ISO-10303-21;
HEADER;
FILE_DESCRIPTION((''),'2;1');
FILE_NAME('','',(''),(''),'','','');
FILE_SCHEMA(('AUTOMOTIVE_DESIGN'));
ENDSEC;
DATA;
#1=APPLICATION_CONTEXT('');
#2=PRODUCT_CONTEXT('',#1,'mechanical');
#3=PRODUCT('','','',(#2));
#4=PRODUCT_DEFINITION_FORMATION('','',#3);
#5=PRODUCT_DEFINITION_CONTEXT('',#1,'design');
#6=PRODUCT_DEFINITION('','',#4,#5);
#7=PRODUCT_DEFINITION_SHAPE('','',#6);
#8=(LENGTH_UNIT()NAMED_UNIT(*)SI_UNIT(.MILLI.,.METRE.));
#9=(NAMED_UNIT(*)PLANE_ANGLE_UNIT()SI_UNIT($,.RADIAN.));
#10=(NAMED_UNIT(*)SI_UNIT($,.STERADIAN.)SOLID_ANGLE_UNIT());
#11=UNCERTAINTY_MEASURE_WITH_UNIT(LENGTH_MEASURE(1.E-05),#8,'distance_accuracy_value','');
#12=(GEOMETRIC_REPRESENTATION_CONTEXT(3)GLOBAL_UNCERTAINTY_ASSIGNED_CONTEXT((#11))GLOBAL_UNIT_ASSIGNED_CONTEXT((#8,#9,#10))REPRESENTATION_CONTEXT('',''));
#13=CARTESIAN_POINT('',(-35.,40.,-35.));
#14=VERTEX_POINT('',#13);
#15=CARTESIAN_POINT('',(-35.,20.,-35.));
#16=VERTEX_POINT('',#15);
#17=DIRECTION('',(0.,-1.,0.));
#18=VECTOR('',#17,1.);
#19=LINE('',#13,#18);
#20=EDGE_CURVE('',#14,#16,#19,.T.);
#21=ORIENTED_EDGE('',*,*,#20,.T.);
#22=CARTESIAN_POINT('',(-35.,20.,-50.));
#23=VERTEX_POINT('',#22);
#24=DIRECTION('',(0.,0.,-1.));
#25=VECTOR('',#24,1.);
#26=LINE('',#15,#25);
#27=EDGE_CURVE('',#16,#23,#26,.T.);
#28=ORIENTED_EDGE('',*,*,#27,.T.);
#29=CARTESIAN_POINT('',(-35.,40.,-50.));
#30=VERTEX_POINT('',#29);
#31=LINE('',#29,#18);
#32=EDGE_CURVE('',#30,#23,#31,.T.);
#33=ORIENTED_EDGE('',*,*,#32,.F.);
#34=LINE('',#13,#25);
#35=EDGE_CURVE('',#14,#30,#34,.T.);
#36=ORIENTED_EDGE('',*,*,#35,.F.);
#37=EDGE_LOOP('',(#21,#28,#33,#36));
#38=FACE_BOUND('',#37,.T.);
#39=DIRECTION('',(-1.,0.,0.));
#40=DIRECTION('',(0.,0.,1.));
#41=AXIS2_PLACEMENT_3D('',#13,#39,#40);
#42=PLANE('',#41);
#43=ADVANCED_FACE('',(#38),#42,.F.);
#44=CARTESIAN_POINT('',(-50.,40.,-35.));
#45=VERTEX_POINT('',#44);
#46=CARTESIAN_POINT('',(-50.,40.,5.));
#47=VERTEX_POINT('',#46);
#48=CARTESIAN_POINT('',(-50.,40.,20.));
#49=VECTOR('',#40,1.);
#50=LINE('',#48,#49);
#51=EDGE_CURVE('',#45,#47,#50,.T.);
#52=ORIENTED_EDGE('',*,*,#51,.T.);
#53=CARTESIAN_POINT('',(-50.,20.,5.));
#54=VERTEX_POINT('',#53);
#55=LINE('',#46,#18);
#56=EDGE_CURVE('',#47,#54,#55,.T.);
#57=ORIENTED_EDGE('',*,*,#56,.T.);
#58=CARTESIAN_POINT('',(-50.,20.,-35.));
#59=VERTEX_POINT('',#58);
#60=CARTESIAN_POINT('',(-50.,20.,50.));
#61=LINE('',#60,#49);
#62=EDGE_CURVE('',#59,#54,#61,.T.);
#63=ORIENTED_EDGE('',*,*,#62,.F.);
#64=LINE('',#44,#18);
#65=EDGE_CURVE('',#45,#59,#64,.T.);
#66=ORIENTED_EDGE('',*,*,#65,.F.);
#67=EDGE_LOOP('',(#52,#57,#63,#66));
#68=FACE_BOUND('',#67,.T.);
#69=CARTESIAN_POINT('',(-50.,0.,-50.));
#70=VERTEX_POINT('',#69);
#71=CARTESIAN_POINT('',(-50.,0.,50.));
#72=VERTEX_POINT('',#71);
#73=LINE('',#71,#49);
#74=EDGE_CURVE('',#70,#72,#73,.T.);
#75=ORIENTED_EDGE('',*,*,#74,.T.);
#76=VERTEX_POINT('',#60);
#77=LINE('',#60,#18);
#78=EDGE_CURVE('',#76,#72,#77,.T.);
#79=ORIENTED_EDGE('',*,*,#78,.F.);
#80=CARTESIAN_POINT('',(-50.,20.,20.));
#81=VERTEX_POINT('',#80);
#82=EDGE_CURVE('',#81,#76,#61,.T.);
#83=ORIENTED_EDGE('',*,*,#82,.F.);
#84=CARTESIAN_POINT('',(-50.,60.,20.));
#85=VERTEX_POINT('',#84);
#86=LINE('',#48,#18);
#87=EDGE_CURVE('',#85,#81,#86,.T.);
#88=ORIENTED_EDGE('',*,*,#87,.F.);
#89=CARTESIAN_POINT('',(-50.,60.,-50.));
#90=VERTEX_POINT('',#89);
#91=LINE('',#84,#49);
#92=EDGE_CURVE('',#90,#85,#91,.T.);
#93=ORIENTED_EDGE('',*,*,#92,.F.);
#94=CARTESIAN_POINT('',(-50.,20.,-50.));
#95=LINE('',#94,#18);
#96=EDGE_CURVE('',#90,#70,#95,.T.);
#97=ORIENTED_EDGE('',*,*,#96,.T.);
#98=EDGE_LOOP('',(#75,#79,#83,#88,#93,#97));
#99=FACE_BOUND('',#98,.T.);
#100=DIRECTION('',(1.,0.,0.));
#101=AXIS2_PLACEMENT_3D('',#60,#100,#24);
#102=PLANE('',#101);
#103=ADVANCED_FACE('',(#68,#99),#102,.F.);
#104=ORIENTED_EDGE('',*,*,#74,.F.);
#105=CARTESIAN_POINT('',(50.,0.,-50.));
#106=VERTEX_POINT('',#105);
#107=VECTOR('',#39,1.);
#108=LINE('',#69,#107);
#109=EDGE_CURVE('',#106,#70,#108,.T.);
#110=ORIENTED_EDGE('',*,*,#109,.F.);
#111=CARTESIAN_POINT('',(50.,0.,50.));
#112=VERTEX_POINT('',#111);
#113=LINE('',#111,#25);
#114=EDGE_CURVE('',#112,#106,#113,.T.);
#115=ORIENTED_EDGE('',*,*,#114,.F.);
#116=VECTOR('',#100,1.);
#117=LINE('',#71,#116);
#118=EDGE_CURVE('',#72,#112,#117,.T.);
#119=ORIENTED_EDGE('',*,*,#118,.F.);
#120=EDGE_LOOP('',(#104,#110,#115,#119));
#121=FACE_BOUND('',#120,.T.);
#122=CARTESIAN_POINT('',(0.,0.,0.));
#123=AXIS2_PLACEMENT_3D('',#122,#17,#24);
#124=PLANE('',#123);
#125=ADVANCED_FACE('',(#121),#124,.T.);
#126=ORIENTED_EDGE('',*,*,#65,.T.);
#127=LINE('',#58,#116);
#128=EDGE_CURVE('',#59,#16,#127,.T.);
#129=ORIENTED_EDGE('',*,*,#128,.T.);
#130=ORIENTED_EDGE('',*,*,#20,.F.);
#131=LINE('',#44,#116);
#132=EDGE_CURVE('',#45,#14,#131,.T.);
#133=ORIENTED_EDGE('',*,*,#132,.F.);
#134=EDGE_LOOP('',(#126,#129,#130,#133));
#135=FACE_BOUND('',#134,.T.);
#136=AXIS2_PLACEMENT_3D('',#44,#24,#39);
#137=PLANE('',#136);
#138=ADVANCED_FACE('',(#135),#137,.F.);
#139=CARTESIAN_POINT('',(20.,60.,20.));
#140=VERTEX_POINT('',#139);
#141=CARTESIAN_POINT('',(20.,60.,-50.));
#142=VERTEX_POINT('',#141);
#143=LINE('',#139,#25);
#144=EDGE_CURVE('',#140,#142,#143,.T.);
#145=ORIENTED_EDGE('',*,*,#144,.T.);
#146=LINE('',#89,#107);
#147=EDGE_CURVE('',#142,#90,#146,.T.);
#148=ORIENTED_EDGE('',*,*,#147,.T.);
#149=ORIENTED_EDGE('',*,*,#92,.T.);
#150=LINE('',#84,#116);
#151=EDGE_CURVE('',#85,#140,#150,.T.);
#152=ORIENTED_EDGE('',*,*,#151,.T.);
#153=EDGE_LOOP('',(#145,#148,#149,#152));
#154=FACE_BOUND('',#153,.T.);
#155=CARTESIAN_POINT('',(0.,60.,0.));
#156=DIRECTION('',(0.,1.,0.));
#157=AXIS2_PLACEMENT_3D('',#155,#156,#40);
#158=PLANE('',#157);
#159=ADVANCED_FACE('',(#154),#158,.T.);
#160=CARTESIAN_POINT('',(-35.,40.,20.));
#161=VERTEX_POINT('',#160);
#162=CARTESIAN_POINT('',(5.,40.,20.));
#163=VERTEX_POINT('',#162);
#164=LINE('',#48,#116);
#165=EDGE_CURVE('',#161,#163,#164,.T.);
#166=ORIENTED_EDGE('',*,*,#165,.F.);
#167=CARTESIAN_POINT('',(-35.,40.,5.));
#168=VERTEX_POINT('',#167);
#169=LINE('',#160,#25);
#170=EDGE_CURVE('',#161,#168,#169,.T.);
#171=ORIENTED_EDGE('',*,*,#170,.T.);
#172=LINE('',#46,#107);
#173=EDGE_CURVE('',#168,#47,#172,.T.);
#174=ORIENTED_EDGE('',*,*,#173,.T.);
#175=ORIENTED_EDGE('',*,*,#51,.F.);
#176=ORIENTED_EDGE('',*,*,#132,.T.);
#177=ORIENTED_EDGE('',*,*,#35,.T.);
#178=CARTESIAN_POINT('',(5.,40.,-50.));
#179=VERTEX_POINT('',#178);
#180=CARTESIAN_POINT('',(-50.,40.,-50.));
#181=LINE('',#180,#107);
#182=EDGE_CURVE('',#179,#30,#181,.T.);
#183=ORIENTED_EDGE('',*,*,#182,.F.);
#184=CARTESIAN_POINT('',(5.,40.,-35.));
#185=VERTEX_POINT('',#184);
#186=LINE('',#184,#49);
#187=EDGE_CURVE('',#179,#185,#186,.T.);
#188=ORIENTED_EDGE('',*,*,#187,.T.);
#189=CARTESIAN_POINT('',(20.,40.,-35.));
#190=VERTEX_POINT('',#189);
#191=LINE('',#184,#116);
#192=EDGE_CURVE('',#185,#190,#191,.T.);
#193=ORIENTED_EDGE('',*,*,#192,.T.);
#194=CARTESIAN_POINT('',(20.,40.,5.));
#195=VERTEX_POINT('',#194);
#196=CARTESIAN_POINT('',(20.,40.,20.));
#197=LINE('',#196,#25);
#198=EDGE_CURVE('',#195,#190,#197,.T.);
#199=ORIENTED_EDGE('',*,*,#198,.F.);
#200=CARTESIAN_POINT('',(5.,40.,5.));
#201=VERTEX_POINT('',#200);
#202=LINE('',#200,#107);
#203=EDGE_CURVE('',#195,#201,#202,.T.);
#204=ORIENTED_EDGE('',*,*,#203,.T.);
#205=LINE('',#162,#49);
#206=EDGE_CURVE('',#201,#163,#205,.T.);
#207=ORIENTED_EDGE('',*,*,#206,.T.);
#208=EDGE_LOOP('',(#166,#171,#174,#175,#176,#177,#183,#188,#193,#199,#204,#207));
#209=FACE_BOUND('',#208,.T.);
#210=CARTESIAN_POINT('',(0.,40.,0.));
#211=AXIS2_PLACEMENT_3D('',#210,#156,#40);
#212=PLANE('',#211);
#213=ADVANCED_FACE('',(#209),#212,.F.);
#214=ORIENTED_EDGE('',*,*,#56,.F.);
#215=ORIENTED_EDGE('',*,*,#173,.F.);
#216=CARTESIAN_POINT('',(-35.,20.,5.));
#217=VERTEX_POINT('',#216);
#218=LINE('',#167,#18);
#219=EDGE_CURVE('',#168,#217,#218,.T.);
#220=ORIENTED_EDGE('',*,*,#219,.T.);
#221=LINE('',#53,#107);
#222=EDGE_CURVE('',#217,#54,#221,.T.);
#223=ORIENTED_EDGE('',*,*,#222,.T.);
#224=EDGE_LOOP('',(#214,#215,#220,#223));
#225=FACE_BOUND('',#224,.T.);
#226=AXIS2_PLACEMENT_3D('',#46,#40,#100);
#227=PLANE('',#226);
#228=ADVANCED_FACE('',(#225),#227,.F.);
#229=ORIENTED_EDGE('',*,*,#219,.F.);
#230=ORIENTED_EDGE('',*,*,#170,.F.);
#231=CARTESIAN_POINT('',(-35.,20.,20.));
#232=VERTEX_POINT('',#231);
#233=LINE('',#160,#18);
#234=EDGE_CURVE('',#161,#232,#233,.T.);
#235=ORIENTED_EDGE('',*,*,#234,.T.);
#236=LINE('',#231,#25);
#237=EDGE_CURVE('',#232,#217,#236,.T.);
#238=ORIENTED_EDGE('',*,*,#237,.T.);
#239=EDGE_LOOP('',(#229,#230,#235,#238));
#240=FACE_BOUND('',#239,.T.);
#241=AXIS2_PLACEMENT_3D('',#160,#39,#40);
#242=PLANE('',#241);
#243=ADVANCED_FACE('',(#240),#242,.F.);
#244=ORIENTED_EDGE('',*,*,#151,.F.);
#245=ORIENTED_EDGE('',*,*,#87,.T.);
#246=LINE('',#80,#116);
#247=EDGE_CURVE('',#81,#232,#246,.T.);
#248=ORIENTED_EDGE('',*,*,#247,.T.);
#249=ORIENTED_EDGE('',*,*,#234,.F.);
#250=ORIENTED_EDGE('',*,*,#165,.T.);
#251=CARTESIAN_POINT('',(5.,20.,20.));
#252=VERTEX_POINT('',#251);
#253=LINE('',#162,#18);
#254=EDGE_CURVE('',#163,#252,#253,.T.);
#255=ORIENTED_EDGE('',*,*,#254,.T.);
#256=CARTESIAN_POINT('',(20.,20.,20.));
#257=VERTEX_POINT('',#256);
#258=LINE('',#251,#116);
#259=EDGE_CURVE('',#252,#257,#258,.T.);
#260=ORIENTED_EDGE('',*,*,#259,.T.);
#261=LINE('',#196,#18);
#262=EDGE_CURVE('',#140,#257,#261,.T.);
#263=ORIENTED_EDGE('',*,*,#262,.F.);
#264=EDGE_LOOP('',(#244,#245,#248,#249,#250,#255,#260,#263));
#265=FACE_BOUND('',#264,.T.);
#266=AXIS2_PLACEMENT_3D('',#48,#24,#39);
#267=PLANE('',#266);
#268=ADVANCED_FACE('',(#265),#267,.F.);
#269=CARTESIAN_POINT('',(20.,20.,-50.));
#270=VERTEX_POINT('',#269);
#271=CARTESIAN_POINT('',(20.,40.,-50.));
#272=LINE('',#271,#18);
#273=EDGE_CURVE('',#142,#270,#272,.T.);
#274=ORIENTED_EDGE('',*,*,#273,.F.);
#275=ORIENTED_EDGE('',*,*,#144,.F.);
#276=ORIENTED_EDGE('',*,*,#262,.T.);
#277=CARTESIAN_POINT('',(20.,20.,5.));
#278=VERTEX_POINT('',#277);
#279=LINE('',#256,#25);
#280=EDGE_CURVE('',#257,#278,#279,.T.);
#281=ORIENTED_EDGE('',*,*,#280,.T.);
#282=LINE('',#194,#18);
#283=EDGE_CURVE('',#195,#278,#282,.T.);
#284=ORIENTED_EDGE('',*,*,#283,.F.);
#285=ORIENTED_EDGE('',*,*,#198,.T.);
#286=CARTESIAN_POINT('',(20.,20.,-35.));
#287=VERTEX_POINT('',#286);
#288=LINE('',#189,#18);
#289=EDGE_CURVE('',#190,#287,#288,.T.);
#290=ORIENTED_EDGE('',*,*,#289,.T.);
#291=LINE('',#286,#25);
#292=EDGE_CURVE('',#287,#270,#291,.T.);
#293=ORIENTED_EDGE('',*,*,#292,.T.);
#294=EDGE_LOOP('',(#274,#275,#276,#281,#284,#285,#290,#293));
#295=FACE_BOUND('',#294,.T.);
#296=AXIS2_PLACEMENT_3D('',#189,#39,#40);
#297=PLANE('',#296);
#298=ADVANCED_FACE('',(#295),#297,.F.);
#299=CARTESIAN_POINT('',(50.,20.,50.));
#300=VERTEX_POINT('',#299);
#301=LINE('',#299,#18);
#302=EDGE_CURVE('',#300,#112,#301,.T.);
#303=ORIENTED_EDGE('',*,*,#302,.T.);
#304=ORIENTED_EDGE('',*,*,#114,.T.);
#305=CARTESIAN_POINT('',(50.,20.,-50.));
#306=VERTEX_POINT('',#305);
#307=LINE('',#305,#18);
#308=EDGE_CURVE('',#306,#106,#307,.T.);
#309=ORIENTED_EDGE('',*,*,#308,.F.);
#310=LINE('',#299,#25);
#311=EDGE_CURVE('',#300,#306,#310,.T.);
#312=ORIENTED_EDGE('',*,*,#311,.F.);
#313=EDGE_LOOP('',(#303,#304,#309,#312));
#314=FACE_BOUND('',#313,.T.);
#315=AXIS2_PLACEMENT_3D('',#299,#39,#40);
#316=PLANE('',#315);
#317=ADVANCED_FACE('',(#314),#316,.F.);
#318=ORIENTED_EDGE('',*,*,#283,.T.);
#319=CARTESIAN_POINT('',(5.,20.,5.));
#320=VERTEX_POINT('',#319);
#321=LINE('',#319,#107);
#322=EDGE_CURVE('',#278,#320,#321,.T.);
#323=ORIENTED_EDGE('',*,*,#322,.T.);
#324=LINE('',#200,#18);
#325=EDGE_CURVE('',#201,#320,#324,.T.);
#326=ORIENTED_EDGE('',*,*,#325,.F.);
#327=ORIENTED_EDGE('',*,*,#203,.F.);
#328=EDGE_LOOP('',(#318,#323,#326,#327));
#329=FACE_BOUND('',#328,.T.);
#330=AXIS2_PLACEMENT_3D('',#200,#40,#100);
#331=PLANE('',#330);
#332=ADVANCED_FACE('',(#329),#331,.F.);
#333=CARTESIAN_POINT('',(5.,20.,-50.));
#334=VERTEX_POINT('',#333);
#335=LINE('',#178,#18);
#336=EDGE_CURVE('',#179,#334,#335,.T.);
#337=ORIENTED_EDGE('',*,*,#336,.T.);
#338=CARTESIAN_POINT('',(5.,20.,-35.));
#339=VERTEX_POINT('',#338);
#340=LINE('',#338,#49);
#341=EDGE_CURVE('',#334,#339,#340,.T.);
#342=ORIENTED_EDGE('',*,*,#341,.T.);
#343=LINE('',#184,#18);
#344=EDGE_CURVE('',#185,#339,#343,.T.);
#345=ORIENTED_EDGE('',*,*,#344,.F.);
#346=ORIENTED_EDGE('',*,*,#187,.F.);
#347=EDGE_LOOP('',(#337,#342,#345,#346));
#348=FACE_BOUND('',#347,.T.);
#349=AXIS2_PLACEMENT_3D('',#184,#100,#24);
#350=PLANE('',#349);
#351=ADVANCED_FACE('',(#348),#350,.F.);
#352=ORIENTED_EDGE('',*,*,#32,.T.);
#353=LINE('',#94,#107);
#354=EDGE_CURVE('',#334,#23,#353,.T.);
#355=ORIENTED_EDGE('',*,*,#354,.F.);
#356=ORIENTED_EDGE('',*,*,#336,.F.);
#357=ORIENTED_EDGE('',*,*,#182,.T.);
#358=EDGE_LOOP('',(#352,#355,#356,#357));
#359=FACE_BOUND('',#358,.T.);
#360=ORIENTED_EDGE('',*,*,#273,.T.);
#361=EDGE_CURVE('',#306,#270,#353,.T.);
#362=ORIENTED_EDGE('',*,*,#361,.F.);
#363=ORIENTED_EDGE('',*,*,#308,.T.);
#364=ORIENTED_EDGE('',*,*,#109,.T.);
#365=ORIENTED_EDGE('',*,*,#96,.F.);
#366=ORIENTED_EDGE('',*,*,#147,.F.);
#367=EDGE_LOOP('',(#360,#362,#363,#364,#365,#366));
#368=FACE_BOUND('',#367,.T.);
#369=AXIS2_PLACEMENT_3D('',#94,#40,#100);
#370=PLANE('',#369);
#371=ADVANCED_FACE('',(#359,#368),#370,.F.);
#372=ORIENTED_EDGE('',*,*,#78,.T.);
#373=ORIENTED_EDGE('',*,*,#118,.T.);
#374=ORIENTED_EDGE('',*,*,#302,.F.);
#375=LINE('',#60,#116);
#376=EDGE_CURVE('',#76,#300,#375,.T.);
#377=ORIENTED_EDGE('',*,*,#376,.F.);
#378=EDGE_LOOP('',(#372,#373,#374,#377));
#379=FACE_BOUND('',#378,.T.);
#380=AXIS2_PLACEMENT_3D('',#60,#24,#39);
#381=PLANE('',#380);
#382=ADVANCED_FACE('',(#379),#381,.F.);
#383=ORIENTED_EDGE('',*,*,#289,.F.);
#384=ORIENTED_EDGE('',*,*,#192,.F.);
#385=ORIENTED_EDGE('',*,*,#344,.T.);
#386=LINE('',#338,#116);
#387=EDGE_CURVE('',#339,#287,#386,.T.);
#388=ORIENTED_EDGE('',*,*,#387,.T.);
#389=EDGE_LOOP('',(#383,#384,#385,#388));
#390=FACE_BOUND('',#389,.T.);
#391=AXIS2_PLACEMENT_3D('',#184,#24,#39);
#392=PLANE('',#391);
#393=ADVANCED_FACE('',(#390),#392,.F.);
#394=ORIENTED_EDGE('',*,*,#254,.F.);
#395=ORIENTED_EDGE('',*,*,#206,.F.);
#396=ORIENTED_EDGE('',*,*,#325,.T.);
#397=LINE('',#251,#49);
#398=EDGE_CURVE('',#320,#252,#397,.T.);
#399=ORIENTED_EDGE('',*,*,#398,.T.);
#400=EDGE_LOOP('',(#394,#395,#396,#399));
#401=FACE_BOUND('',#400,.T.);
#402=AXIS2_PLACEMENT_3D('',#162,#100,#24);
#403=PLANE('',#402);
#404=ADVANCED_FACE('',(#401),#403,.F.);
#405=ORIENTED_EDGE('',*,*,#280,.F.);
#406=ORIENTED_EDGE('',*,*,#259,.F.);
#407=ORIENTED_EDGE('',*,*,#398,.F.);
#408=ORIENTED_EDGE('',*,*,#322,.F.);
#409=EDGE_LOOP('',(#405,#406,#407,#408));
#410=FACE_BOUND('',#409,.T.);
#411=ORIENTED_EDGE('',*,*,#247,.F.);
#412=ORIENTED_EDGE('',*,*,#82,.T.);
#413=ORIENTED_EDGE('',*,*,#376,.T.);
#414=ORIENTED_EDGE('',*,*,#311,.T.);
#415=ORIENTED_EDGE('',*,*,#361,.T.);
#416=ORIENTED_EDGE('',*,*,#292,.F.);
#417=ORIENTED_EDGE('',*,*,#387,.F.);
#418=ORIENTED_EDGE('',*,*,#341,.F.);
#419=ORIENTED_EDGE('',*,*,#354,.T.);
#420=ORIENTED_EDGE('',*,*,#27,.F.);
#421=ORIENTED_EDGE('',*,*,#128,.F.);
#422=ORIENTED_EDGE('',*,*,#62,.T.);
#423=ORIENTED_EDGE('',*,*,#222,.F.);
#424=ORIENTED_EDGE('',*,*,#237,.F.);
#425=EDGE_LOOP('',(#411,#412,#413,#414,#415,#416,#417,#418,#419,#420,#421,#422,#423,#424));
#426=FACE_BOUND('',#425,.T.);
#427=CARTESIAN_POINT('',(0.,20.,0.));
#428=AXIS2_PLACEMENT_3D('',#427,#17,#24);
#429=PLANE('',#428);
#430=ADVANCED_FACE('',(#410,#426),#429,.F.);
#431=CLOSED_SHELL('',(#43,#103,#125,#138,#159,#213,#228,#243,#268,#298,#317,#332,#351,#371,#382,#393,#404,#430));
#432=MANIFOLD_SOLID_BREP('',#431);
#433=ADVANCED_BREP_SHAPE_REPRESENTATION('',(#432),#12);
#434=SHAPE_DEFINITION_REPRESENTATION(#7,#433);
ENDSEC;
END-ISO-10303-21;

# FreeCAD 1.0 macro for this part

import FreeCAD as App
import Part
import Sketcher

V = App.Vector


def add_polygon(sketch, points):
    """Adds a closed chain of lines whose ends are joined by coincident constraints."""
    first, n = sketch.GeometryCount, len(points)
    for a, b in zip(points, points[1:] + points[:1]):
        sketch.addGeometry(Part.LineSegment(App.Vector(*a, 0), App.Vector(*b, 0)), False)
    for i in range(n):
        sketch.addConstraint(Sketcher.Constraint("Coincident", first + i, 2, first + (i + 1) % n, 1))

doc = App.newDocument("Part")
body = doc.addObject("PartDesign::Body", "Body")

sketch1 = body.newObject("Sketcher::SketchObject", "Sketch")
sketch1.AttachmentSupport = (doc.getObject("XZ_Plane"), [""])
sketch1.MapMode = "FlatFace"
add_polygon(sketch1, [(-50, -50), (-50, 50), (50, 50), (50, -50)])
sketch1.addConstraint(Sketcher.Constraint("Vertical", 0))
sketch1.addConstraint(Sketcher.Constraint("Horizontal", 1))
sketch1.addConstraint(Sketcher.Constraint("Vertical", 2))
sketch1.addConstraint(Sketcher.Constraint("Horizontal", 3))
sketch1.addConstraint(Sketcher.Constraint("Symmetric", 0, 2, 2, 2, -1, 1))
sketch1.addConstraint(Sketcher.Constraint("Equal", 3, 0))
sketch1.addConstraint(Sketcher.Constraint("DistanceX", 1, 1, 1, 2, 100.0))
pad1 = body.newObject("PartDesign::Pad", "Pad")
pad1.Profile = sketch1
pad1.Length = 20
pad1.Reversed = True

sketch2 = body.newObject("Sketcher::SketchObject", "Sketch001")
sketch2.AttachmentSupport = (doc.getObject("XZ_Plane"), [""])
sketch2.MapMode = "FlatFace"
sketch2.AttachmentOffset = App.Placement(V(0, 0, -20), App.Rotation())
add_polygon(sketch2, [(-50, 5), (-50, 20), (-35, 20), (-35, 5)])
add_polygon(sketch2, [(-50, -50), (-50, -35), (-35, -35), (-35, -50)])
add_polygon(sketch2, [(5, -50), (5, -35), (20, -35), (20, -50)])
add_polygon(sketch2, [(5, 5), (5, 20), (20, 20), (20, 5)])
sketch2.addConstraint(Sketcher.Constraint("Vertical", 0))
sketch2.addConstraint(Sketcher.Constraint("Horizontal", 1))
sketch2.addConstraint(Sketcher.Constraint("Vertical", 2))
sketch2.addConstraint(Sketcher.Constraint("Horizontal", 3))
sketch2.addConstraint(Sketcher.Constraint("Vertical", 4))
sketch2.addConstraint(Sketcher.Constraint("Horizontal", 5))
sketch2.addConstraint(Sketcher.Constraint("Vertical", 6))
sketch2.addConstraint(Sketcher.Constraint("Horizontal", 7))
sketch2.addConstraint(Sketcher.Constraint("Vertical", 8))
sketch2.addConstraint(Sketcher.Constraint("Horizontal", 9))
sketch2.addConstraint(Sketcher.Constraint("Vertical", 10))
sketch2.addConstraint(Sketcher.Constraint("Horizontal", 11))
sketch2.addConstraint(Sketcher.Constraint("Vertical", 12))
sketch2.addConstraint(Sketcher.Constraint("Horizontal", 13))
sketch2.addConstraint(Sketcher.Constraint("Vertical", 14))
sketch2.addConstraint(Sketcher.Constraint("Horizontal", 15))
sketch2.addConstraint(Sketcher.Constraint("Horizontal", 5, 2, 8, 2))
sketch2.addConstraint(Sketcher.Constraint("Horizontal", 7, 2, 10, 2))
sketch2.addConstraint(Sketcher.Constraint("Horizontal", 1, 2, 12, 2))
sketch2.addConstraint(Sketcher.Constraint("Horizontal", 3, 2, 14, 2))
sketch2.addConstraint(Sketcher.Constraint("Vertical", 3, 2, 4, 2))
sketch2.addConstraint(Sketcher.Constraint("Vertical", 2, 2, 5, 2))
sketch2.addConstraint(Sketcher.Constraint("Vertical", 11, 2, 12, 2))
sketch2.addConstraint(Sketcher.Constraint("Vertical", 10, 2, 13, 2))
sketch2.addConstraint(Sketcher.Constraint("Equal", 7, 9))
sketch2.addConstraint(Sketcher.Constraint("Equal", 15, 0))
sketch2.addConstraint(Sketcher.Constraint("Equal", 2, 4))
sketch2.addConstraint(Sketcher.Constraint("DistanceX", 1, 1, 1, 2, 15.0))
sketch2.addConstraint(Sketcher.Constraint("DistanceX", 0, 2, -1, 1, 50.0))
sketch2.addConstraint(Sketcher.Constraint("DistanceY", -1, 1, 0, 2, 20.0))
sketch2.addConstraint(Sketcher.Constraint("DistanceY", 4, 2, -1, 1, 35.0))
sketch2.addConstraint(Sketcher.Constraint("DistanceX", -1, 1, 8, 2, 5.0))
pad2 = body.newObject("PartDesign::Pad", "Pad001")
pad2.Profile = sketch2
pad2.Length = 20
pad2.Reversed = True

sketch3 = body.newObject("Sketcher::SketchObject", "Sketch002")
sketch3.AttachmentSupport = (doc.getObject("XZ_Plane"), [""])
sketch3.MapMode = "FlatFace"
sketch3.AttachmentOffset = App.Placement(V(0, 0, -40), App.Rotation())
add_polygon(sketch3, [(-50, -50), (-50, 20), (20, 20), (20, -50)])
sketch3.addConstraint(Sketcher.Constraint("Vertical", 0))
sketch3.addConstraint(Sketcher.Constraint("Horizontal", 1))
sketch3.addConstraint(Sketcher.Constraint("Vertical", 2))
sketch3.addConstraint(Sketcher.Constraint("Horizontal", 3))
sketch3.addConstraint(Sketcher.Constraint("Equal", 3, 0))
sketch3.addConstraint(Sketcher.Constraint("DistanceX", 1, 1, 1, 2, 70.0))
sketch3.addConstraint(Sketcher.Constraint("DistanceX", 0, 2, -1, 1, 50.0))
sketch3.addConstraint(Sketcher.Constraint("DistanceY", -1, 1, 0, 2, 20.0))
pad3 = body.newObject("PartDesign::Pad", "Pad002")
pad3.Profile = sketch3
pad3.Length = 20
pad3.Reversed = True

doc.recompute()
